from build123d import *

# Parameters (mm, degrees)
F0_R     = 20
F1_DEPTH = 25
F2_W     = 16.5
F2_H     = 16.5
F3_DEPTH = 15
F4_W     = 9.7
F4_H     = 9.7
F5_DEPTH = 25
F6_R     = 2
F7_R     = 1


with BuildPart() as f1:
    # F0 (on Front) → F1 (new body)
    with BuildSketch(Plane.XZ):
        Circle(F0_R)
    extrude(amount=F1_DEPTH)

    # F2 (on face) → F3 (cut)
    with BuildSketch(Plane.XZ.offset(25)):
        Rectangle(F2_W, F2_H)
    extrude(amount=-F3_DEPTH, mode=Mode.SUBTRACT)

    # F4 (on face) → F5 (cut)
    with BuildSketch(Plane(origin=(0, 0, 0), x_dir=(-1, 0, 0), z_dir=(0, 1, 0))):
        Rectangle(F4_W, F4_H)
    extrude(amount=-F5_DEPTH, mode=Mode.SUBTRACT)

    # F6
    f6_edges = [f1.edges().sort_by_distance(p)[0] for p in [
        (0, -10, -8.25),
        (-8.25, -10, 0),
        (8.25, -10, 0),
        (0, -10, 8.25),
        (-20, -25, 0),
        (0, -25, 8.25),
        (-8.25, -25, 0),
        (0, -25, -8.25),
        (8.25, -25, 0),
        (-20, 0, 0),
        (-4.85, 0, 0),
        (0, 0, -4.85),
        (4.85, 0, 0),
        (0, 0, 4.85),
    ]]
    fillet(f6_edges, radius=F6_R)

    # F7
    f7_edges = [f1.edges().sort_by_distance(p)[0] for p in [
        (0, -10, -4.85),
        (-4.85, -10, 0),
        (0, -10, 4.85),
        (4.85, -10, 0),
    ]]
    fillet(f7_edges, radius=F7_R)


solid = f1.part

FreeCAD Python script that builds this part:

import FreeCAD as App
import Part
import Sketcher


def edges_at(feature, points):
    """Names of the edges that pass closest to the given points."""
    edges = feature.Shape.Edges
    near = lambda p: min(range(len(edges)), key=lambda i: edges[i].distToShape(Part.Vertex(*p))[0])
    return sorted({f"Edge{near(p) + 1}" for p in points})


def add_polygon(sketch, points):
    """Adds a closed chain of lines whose ends are joined by coincident constraints."""
    first, n = sketch.GeometryCount, len(points)
    for a, b in zip(points, points[1:] + points[:1]):
        sketch.addGeometry(Part.LineSegment(App.Vector(*a, 0), App.Vector(*b, 0)), False)
    for i in range(n):
        sketch.addConstraint(Sketcher.Constraint("Coincident", first + i, 2, first + (i + 1) % n, 1))

doc = App.newDocument("Part")
body = doc.addObject("PartDesign::Body", "Body")

# Sketch on XZ plane
sketch1 = body.newObject("Sketcher::SketchObject", "Sketch")
sketch1.AttachmentSupport = (doc.getObject("XZ_Plane"), [""])
sketch1.MapMode = "FlatFace"
sketch1.addGeometry(Part.Circle(App.Vector(0, 0, 0), App.Vector(0, 0, 1), 20), False)
sketch1.addConstraint([
    Sketcher.Constraint("Coincident", 0, 3, -1, 1),
    Sketcher.Constraint("Diameter", 0, 40.0),
])
pad1 = body.newObject("PartDesign::Pad", "Pad")
pad1.Profile = sketch1
pad1.Length = 25

# Sketch on XZ plane
sketch2 = body.newObject("Sketcher::SketchObject", "Sketch001")
sketch2.AttachmentSupport = (doc.getObject("XZ_Plane"), [""])
sketch2.MapMode = "FlatFace"
sketch2.AttachmentOffset = App.Placement(App.Vector(0, 0, 25), App.Rotation())
add_polygon(sketch2, [(-8, 8), (-8, -8), (8, -8), (8, 8)])  # lines 0-3
sketch2.addConstraint([
    Sketcher.Constraint("Vertical", 0),
    Sketcher.Constraint("Horizontal", 1),
    Sketcher.Constraint("Vertical", 2),
    Sketcher.Constraint("Horizontal", 3),
    Sketcher.Constraint("Symmetric", 0, 2, 2, 2, -1, 1),
    Sketcher.Constraint("Equal", 3, 0),
    Sketcher.Constraint("DistanceX", 1, 1, 1, 2, 16.5),
])
pocket1 = body.newObject("PartDesign::Pocket", "Pocket")
pocket1.Profile = sketch2
pocket1.Length = 15

# Sketch on XZ plane
sketch3 = body.newObject("Sketcher::SketchObject", "Sketch002")
sketch3.AttachmentSupport = (doc.getObject("XZ_Plane"), [""])
sketch3.MapMode = "FlatFace"
add_polygon(sketch3, [(5, 5), (5, -5), (-5, -5), (-5, 5)])  # lines 0-3
sketch3.addConstraint([
    Sketcher.Constraint("Vertical", 0),
    Sketcher.Constraint("Horizontal", 1),
    Sketcher.Constraint("Vertical", 2),
    Sketcher.Constraint("Horizontal", 3),
    Sketcher.Constraint("Symmetric", 0, 2, 2, 2, -1, 1),
    Sketcher.Constraint("Equal", 3, 0),
    Sketcher.Constraint("DistanceX", 1, 2, 1, 1, 9.7),
])
pocket2 = body.newObject("PartDesign::Pocket", "Pocket001")
pocket2.Profile = sketch3
pocket2.Length = 25
pocket2.Reversed = True
doc.recompute()

fillet = body.newObject("PartDesign::Fillet", "Fillet")
fillet.Base = (pocket2, edges_at(pocket2, [
    (0, -10, -8.25),
    (-8.25, -10, 0),
    (8.25, -10, 0),
    (0, -10, 8.25),
    (-20, -25, 0),
    (0, -25, 8.25),
    (-8.25, -25, 0),
    (0, -25, -8.25),
    (8.25, -25, 0),
    (-20, 0, 0),
    (-4.85, 0, 0),
    (0, 0, -4.85),
    (4.85, 0, 0),
    (0, 0, 4.85),
]))
fillet.Radius = 2
doc.recompute()

fillet2 = body.newObject("PartDesign::Fillet", "Fillet001")
fillet2.Base = (fillet, edges_at(fillet, [
    (0, -10, -4.85),
    (-4.85, -10, 0),
    (0, -10, 4.85),
    (4.85, -10, 0),
]))
fillet2.Radius = 1

doc.recompute()
